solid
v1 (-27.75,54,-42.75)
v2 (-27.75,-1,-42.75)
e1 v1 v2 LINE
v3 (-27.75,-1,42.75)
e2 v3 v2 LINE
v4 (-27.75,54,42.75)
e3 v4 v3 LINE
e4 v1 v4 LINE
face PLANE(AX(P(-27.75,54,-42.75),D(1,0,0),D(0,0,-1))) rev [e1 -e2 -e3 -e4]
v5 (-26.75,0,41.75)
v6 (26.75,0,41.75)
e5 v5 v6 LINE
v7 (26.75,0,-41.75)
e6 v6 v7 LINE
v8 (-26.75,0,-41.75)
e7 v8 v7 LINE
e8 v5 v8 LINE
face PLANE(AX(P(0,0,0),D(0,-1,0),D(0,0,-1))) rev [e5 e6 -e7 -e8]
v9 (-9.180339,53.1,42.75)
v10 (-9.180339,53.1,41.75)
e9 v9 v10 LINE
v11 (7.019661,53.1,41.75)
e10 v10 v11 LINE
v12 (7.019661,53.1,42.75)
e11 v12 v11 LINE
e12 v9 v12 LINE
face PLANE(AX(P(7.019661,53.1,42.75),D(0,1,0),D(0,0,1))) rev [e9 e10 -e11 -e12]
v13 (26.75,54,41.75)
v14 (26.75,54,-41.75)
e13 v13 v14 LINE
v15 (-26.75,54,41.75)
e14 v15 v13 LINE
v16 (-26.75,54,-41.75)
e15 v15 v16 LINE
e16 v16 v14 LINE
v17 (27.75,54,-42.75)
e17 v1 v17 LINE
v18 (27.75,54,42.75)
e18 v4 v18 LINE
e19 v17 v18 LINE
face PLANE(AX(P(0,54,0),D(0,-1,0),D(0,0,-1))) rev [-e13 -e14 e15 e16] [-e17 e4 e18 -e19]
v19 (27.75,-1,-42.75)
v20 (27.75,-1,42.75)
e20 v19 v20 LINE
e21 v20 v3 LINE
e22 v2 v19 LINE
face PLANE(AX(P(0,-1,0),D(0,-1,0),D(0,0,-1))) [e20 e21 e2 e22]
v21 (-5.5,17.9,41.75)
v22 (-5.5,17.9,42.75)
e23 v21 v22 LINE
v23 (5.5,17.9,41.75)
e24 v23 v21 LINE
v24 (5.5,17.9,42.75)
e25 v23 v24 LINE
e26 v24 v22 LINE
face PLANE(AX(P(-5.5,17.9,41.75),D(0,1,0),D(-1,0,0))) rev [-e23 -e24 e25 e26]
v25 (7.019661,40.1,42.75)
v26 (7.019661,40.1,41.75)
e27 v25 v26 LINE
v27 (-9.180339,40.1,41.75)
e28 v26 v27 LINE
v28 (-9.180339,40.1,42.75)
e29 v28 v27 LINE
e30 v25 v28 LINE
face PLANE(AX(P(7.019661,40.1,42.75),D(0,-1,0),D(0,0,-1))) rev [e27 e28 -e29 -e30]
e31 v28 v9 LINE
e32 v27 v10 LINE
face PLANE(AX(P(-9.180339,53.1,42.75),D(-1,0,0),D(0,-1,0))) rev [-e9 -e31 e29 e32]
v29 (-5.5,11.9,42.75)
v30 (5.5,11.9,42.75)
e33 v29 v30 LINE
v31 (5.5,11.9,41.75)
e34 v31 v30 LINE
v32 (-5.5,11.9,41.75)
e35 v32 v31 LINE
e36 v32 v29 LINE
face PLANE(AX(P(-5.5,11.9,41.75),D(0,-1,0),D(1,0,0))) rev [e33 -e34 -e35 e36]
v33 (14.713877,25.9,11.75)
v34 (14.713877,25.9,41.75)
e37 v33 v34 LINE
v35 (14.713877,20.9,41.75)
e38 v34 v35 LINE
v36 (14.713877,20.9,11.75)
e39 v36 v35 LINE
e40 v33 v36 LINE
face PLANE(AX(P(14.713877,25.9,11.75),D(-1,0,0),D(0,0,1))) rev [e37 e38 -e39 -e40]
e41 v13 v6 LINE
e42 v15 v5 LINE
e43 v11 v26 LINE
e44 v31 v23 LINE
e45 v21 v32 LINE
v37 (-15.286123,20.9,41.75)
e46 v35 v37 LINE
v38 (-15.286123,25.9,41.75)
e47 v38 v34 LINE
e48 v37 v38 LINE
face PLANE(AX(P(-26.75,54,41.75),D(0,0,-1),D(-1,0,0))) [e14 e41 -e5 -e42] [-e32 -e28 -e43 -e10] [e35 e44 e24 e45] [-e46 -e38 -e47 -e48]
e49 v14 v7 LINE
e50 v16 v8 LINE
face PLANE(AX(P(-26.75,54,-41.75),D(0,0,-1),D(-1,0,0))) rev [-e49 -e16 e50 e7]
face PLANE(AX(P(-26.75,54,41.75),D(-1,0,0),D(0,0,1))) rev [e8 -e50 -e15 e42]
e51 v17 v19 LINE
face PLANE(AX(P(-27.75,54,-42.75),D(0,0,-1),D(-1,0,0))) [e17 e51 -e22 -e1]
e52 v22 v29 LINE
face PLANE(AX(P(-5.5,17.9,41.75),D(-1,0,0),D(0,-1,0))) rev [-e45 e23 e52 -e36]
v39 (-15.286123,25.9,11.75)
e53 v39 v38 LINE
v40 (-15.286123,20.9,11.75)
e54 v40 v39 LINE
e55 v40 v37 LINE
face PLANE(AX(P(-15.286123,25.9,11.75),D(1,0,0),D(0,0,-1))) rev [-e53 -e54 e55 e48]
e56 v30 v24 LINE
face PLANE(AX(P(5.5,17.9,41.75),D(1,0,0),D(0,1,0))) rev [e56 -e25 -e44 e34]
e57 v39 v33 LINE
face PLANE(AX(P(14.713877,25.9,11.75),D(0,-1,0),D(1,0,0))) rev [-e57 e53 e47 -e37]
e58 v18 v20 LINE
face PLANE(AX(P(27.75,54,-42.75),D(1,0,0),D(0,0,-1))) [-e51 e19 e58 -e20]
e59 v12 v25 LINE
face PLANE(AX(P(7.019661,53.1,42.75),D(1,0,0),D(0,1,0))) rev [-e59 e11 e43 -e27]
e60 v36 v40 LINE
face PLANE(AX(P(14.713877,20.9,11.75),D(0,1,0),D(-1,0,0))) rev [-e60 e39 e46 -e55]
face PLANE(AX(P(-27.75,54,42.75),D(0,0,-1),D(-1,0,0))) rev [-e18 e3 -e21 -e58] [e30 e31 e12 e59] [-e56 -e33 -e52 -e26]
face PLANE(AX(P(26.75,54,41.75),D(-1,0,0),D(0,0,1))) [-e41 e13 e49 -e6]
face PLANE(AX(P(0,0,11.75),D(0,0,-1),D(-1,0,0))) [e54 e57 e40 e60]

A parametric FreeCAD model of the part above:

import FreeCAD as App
import Part
import Sketcher

V = App.Vector
Q = App.Units.Quantity

doc = App.newDocument("Part")
body = doc.addObject("PartDesign::Body", "Body")

# Sketch on XZ plane
sketch1 = body.newObject("Sketcher::SketchObject", "Sketch")
sketch1.AttachmentSupport = (doc.getObject("XZ_Plane"), [""])
sketch1.MapMode = "FlatFace"
sketch1.addGeometry(Part.LineSegment(V(-27.75, -42.75, 0), V(-27.75, 42.75, 0)), False)
sketch1.addGeometry(Part.LineSegment(V(-27.75, 42.75, 0), V(27.75, 42.75, 0)), False)
sketch1.addGeometry(Part.LineSegment(V(27.75, 42.75, 0), V(27.75, -42.75, 0)), False)
sketch1.addGeometry(Part.LineSegment(V(27.75, -42.75, 0), V(-27.75, -42.75, 0)), False)
sketch1.addGeometry(Part.LineSegment(V(26.75, 41.75, 0), V(-26.75, 41.75, 0)), False)
sketch1.addGeometry(Part.LineSegment(V(-26.75, 41.75, 0), V(-26.75, -41.75, 0)), False)
sketch1.addGeometry(Part.LineSegment(V(-26.75, -41.75, 0), V(26.75, -41.75, 0)), False)
sketch1.addGeometry(Part.LineSegment(V(26.75, -41.75, 0), V(26.75, 41.75, 0)), False)
sketch1.addConstraint(Sketcher.Constraint("Coincident", 0, 2, 1, 1))
sketch1.addConstraint(Sketcher.Constraint("Coincident", 1, 2, 2, 1))
sketch1.addConstraint(Sketcher.Constraint("Coincident", 2, 2, 3, 1))
sketch1.addConstraint(Sketcher.Constraint("Coincident", 3, 2, 0, 1))
sketch1.addConstraint(Sketcher.Constraint("Coincident", 4, 2, 5, 1))
sketch1.addConstraint(Sketcher.Constraint("Coincident", 5, 2, 6, 1))
sketch1.addConstraint(Sketcher.Constraint("Coincident", 6, 2, 7, 1))
sketch1.addConstraint(Sketcher.Constraint("Coincident", 7, 2, 4, 1))
sketch1.addConstraint(Sketcher.Constraint("Vertical", 0))
sketch1.addConstraint(Sketcher.Constraint("Horizontal", 1))
sketch1.addConstraint(Sketcher.Constraint("Vertical", 2))
sketch1.addConstraint(Sketcher.Constraint("Horizontal", 3))
sketch1.addConstraint(Sketcher.Constraint("Horizontal", 4))
sketch1.addConstraint(Sketcher.Constraint("Vertical", 5))
sketch1.addConstraint(Sketcher.Constraint("Horizontal", 6))
sketch1.addConstraint(Sketcher.Constraint("Vertical", 7))
sketch1.addConstraint(Sketcher.Constraint("Symmetric", 0, 2, 2, 2, -1, 1))
sketch1.addConstraint(Sketcher.Constraint("Symmetric", 4, 2, 6, 2, -1, 1))
sketch1.addConstraint(Sketcher.Constraint("DistanceX", 1, 1, 1, 2, Q("55.5 mm")))
sketch1.addConstraint(Sketcher.Constraint("DistanceX", 4, 2, 4, 1, Q("53.5 mm")))
sketch1.addConstraint(Sketcher.Constraint("DistanceY", 0, 1, 0, 2, Q("85.5 mm")))
sketch1.addConstraint(Sketcher.Constraint("DistanceY", 5, 2, 5, 1, Q("83.5 mm")))
pad1 = body.newObject("PartDesign::Pad", "Pad")
pad1.Profile = sketch1
pad1.Length = 54
pad1.Reversed = True

# Sketch on XZ plane
sketch2 = body.newObject("Sketcher::SketchObject", "Sketch001")
sketch2.AttachmentSupport = (doc.getObject("XZ_Plane"), [""])
sketch2.MapMode = "FlatFace"
sketch2.addGeometry(Part.LineSegment(V(-27.75, 42.75, 0), V(-27.75, -42.75, 0)), False)
sketch2.addGeometry(Part.LineSegment(V(-27.75, -42.75, 0), V(27.75, -42.75, 0)), False)
sketch2.addGeometry(Part.LineSegment(V(27.75, -42.75, 0), V(27.75, 42.75, 0)), False)
sketch2.addGeometry(Part.LineSegment(V(27.75, 42.75, 0), V(-27.75, 42.75, 0)), False)
sketch2.addConstraint(Sketcher.Constraint("Coincident", 0, 2, 1, 1))
sketch2.addConstraint(Sketcher.Constraint("Coincident", 1, 2, 2, 1))
sketch2.addConstraint(Sketcher.Constraint("Coincident", 2, 2, 3, 1))
sketch2.addConstraint(Sketcher.Constraint("Coincident", 3, 2, 0, 1))
sketch2.addConstraint(Sketcher.Constraint("Vertical", 0))
sketch2.addConstraint(Sketcher.Constraint("Horizontal", 1))
sketch2.addConstraint(Sketcher.Constraint("Vertical", 2))
sketch2.addConstraint(Sketcher.Constraint("Horizontal", 3))
sketch2.addConstraint(Sketcher.Constraint("Symmetric", 0, 2, 2, 2, -1, 1))
sketch2.addConstraint(Sketcher.Constraint("DistanceX", 1, 1, 1, 2, Q("55.5 mm")))
sketch2.addConstraint(Sketcher.Constraint("DistanceY", 0, 2, 0, 1, Q("85.5 mm")))
pad2 = body.newObject("PartDesign::Pad", "Pad001")
pad2.Profile = sketch2
pad2.Length = 1

# Sketch on XY plane
sketch3 = body.newObject("Sketcher::SketchObject", "Sketch002")
sketch3.AttachmentSupport = (doc.getObject("XY_Plane"), [""])
sketch3.MapMode = "FlatFace"
sketch3.AttachmentOffset = App.Placement(V(0, 0, 42.75), App.Rotation())
sketch3.addGeometry(Part.LineSegment(V(-5.5, 17.9, 0), V(-5.5, 11.9, 0)), False)
sketch3.addGeometry(Part.LineSegment(V(-5.5, 11.9, 0), V(5.5, 11.9, 0)), False)
sketch3.addGeometry(Part.LineSegment(V(5.5, 11.9, 0), V(5.5, 17.9, 0)), False)
sketch3.addGeometry(Part.LineSegment(V(5.5, 17.9, 0), V(-5.5, 17.9, 0)), False)
sketch3.addConstraint(Sketcher.Constraint("Coincident", 0, 2, 1, 1))
sketch3.addConstraint(Sketcher.Constraint("Coincident", 1, 2, 2, 1))
sketch3.addConstraint(Sketcher.Constraint("Coincident", 2, 2, 3, 1))
sketch3.addConstraint(Sketcher.Constraint("Coincident", 3, 2, 0, 1))
sketch3.addConstraint(Sketcher.Constraint("Vertical", 0))
sketch3.addConstraint(Sketcher.Constraint("Horizontal", 1))
sketch3.addConstraint(Sketcher.Constraint("Vertical", 2))
sketch3.addConstraint(Sketcher.Constraint("Horizontal", 3))
sketch3.addConstraint(Sketcher.Constraint("DistanceX", 1, 1, 1, 2, Q("11 mm")))
sketch3.addConstraint(Sketcher.Constraint("DistanceY", 0, 2, 0, 1, Q("6 mm")))
sketch3.addConstraint(Sketcher.Constraint("DistanceX", 0, 2, -1, 1, Q("5.5 mm")))
sketch3.addConstraint(Sketcher.Constraint("DistanceY", -1, 1, 0, 2, Q("11.9 mm")))
pocket1 = body.newObject("PartDesign::Pocket", "Pocket")
pocket1.Profile = sketch3
pocket1.Length = 1

# Sketch on XY plane
sketch4 = body.newObject("Sketcher::SketchObject", "Sketch003")
sketch4.AttachmentSupport = (doc.getObject("XY_Plane"), [""])
sketch4.MapMode = "FlatFace"
sketch4.AttachmentOffset = App.Placement(V(0, 0, 41.75), App.Rotation())
sketch4.addGeometry(Part.LineSegment(V(14.713877, 25.9, 0), V(14.713877, 20.9, 0)), False)
sketch4.addGeometry(Part.LineSegment(V(14.713877, 20.9, 0), V(-15.286123, 20.9, 0)), False)
sketch4.addGeometry(Part.LineSegment(V(-15.286123, 20.9, 0), V(-15.286123, 25.9, 0)), False)
sketch4.addGeometry(Part.LineSegment(V(-15.286123, 25.9, 0), V(14.713877, 25.9, 0)), False)
sketch4.addConstraint(Sketcher.Constraint("Coincident", 0, 2, 1, 1))
sketch4.addConstraint(Sketcher.Constraint("Coincident", 1, 2, 2, 1))
sketch4.addConstraint(Sketcher.Constraint("Coincident", 2, 2, 3, 1))
sketch4.addConstraint(Sketcher.Constraint("Coincident", 3, 2, 0, 1))
sketch4.addConstraint(Sketcher.Constraint("Vertical", 0))
sketch4.addConstraint(Sketcher.Constraint("Horizontal", 1))
sketch4.addConstraint(Sketcher.Constraint("Vertical", 2))
sketch4.addConstraint(Sketcher.Constraint("Horizontal", 3))
sketch4.addConstraint(Sketcher.Constraint("DistanceX", 1, 2, 1, 1, Q("30 mm")))
sketch4.addConstraint(Sketcher.Constraint("DistanceY", 0, 2, 0, 1, Q("5 mm")))
sketch4.addConstraint(Sketcher.Constraint("DistanceY", -1, 1, 0, 2, Q("20.9 mm")))
sketch4.addConstraint(Sketcher.Constraint("DistanceX", -1, 1, 0, 2, Q("14.713877 mm")))
pad3 = body.newObject("PartDesign::Pad", "Pad002")
pad3.Profile = sketch4
pad3.Length = 30
pad3.Reversed = True

# Sketch on XY plane
sketch5 = body.newObject("Sketcher::SketchObject", "Sketch004")
sketch5.AttachmentSupport = (doc.getObject("XY_Plane"), [""])
sketch5.MapMode = "FlatFace"
sketch5.AttachmentOffset = App.Placement(V(0, 0, 41.75), App.Rotation())
sketch5.addGeometry(Part.LineSegment(V(7.019661, 53.1, 0), V(7.019661, 40.1, 0)), False)
sketch5.addGeometry(Part.LineSegment(V(7.019661, 40.1, 0), V(-9.180339, 40.1, 0)), False)
sketch5.addGeometry(Part.LineSegment(V(-9.180339, 40.1, 0), V(-9.180339, 53.1, 0)), False)
sketch5.addGeometry(Part.LineSegment(V(-9.180339, 53.1, 0), V(7.019661, 53.1, 0)), False)
sketch5.addConstraint(Sketcher.Constraint("Coincident", 0, 2, 1, 1))
sketch5.addConstraint(Sketcher.Constraint("Coincident", 1, 2, 2, 1))
sketch5.addConstraint(Sketcher.Constraint("Coincident", 2, 2, 3, 1))
sketch5.addConstraint(Sketcher.Constraint("Coincident", 3, 2, 0, 1))
sketch5.addConstraint(Sketcher.Constraint("Vertical", 0))
sketch5.addConstraint(Sketcher.Constraint("Horizontal", 1))
sketch5.addConstraint(Sketcher.Constraint("Vertical", 2))
sketch5.addConstraint(Sketcher.Constraint("Horizontal", 3))
sketch5.addConstraint(Sketcher.Constraint("DistanceY", 0, 2, 0, 1, Q("13 mm")))
sketch5.addConstraint(Sketcher.Constraint("DistanceX", 1, 2, 1, 1, Q("16.2 mm")))
sketch5.addConstraint(Sketcher.Constraint("DistanceY", -1, 1, 0, 2, Q("40.1 mm")))
sketch5.addConstraint(Sketcher.Constraint("DistanceX", -1, 1, 0, 2, Q("7.019661 mm")))
pocket2 = body.newObject("PartDesign::Pocket", "Pocket001")
pocket2.Profile = sketch5
pocket2.Length = 1
pocket2.Reversed = True

doc.recompute()
